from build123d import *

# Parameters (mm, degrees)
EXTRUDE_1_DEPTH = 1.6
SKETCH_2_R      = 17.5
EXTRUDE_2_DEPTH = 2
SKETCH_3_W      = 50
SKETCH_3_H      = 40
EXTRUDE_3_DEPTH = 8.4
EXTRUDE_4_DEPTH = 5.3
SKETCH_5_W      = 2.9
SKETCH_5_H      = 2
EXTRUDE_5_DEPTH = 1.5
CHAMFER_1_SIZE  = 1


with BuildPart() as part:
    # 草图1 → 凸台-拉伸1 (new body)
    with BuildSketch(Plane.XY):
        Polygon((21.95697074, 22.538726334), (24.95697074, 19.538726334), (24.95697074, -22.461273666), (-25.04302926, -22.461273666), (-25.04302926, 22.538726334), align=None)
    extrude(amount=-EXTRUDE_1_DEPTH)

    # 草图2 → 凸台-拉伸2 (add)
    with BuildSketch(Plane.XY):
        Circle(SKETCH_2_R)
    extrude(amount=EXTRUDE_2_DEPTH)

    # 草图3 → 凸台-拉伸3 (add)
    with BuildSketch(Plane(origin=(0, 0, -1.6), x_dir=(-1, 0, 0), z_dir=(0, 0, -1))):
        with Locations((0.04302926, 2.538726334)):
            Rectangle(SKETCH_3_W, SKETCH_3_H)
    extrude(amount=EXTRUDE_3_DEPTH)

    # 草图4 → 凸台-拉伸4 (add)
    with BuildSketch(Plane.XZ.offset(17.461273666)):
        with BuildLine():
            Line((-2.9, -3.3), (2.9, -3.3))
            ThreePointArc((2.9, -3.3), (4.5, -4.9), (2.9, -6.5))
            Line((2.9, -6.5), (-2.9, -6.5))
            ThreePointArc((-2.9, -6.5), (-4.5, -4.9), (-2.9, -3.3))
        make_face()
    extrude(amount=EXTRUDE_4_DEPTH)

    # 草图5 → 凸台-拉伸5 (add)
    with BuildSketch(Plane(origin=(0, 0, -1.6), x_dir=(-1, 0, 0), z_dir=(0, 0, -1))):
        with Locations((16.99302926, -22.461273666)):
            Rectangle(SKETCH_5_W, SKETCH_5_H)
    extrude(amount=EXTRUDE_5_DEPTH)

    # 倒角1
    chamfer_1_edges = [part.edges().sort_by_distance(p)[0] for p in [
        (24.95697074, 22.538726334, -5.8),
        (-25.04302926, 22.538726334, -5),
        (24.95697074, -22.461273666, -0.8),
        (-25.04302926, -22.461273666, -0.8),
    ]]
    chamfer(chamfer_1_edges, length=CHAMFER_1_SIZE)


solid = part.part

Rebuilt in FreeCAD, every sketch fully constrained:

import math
import FreeCAD as App
import Part
import Sketcher
Q = App.Units.Quantity


def edges_at(feature, points):
    """Names of the edges that pass closest to the given points."""
    edges = feature.Shape.Edges
    near = lambda p: min(range(len(edges)), key=lambda i: edges[i].distToShape(Part.Vertex(*p))[0])
    return sorted({f"Edge{near(p) + 1}" for p in points})

doc = App.newDocument("Part")
body = doc.addObject("PartDesign::Body", "Body")

# Sketch on XY plane
sketch1 = body.newObject("Sketcher::SketchObject", "Sketch")
sketch1.AttachmentSupport = (doc.getObject("XY_Plane"), [""])
sketch1.MapMode = "FlatFace"
sketch1.addGeometry([
    Part.LineSegment(App.Vector(24.956971, 19.538726, 0), App.Vector(21.956971, 22.538726, 0)),  # 0
    Part.LineSegment(App.Vector(21.956971, 22.538726, 0), App.Vector(-25.043029, 22.538726, 0)),  # 1
    Part.LineSegment(App.Vector(-25.043029, 22.538726, 0), App.Vector(-25.043029, -22.461274, 0)),  # 2
    Part.LineSegment(App.Vector(-25.043029, -22.461274, 0), App.Vector(24.956971, -22.461274, 0)),  # 3
    Part.LineSegment(App.Vector(24.956971, -22.461274, 0), App.Vector(24.956971, 19.538726, 0)),  # 4
], False)
sketch1.addConstraint([
    Sketcher.Constraint("Coincident", 0, 2, 1, 1),
    Sketcher.Constraint("Coincident", 1, 2, 2, 1),
    Sketcher.Constraint("Coincident", 2, 2, 3, 1),
    Sketcher.Constraint("Coincident", 3, 2, 4, 1),
    Sketcher.Constraint("Coincident", 4, 2, 0, 1),
    Sketcher.Constraint("Horizontal", 1),
    Sketcher.Constraint("Vertical", 2),
    Sketcher.Constraint("Horizontal", 3),
    Sketcher.Constraint("Vertical", 4),
    Sketcher.Constraint("DistanceX", 1, 2, 1, 1, Q("47 mm")),
    Sketcher.Constraint("DistanceX", 3, 1, 3, 2, Q("50 mm")),
    Sketcher.Constraint("DistanceY", 2, 2, 2, 1, Q("45 mm")),
    Sketcher.Constraint("DistanceY", 4, 1, 4, 2, Q("42 mm")),
    Sketcher.Constraint("DistanceX", -1, 1, 0, 2, Q("21.956971 mm")),
    Sketcher.Constraint("DistanceY", -1, 1, 0, 2, Q("22.538726 mm")),
])
pad1 = body.newObject("PartDesign::Pad", "Pad")
pad1.Profile = sketch1
pad1.Length = 1.6
pad1.Reversed = True

# Sketch on XY plane
sketch2 = body.newObject("Sketcher::SketchObject", "Sketch001")
sketch2.AttachmentSupport = (doc.getObject("XY_Plane"), [""])
sketch2.MapMode = "FlatFace"
sketch2.addGeometry(Part.Circle(App.Vector(0, 0, 0), App.Vector(0, 0, 1), 17.5), False)
sketch2.addConstraint([
    Sketcher.Constraint("Coincident", 0, 3, -1, 1),
    Sketcher.Constraint("Diameter", 0, Q("35 mm")),
])
pad2 = body.newObject("PartDesign::Pad", "Pad001")
pad2.Profile = sketch2
pad2.Length = 2

# Sketch on XY plane
sketch3 = body.newObject("Sketcher::SketchObject", "Sketch002")
sketch3.AttachmentSupport = (doc.getObject("XY_Plane"), [""])
sketch3.MapMode = "FlatFace"
sketch3.AttachmentOffset = App.Placement(App.Vector(0, 0, -1.6), App.Rotation())
sketch3.addGeometry([
    Part.LineSegment(App.Vector(24.956971, 22.538726, 0), App.Vector(24.956971, -17.461274, 0)),
    Part.LineSegment(App.Vector(24.956971, -17.461274, 0), App.Vector(-25.043029, -17.461274, 0)),
    Part.LineSegment(App.Vector(-25.043029, -17.461274, 0), App.Vector(-25.043029, 22.538726, 0)),
    Part.LineSegment(App.Vector(-25.043029, 22.538726, 0), App.Vector(24.956971, 22.538726, 0)),
], False)
sketch3.addConstraint([
    Sketcher.Constraint("Coincident", 0, 2, 1, 1),
    Sketcher.Constraint("Coincident", 1, 2, 2, 1),
    Sketcher.Constraint("Coincident", 2, 2, 3, 1),
    Sketcher.Constraint("Coincident", 3, 2, 0, 1),
    Sketcher.Constraint("Vertical", 0),
    Sketcher.Constraint("Horizontal", 1),
    Sketcher.Constraint("Vertical", 2),
    Sketcher.Constraint("Horizontal", 3),
    Sketcher.Constraint("DistanceX", 1, 2, 1, 1, Q("50 mm")),
    Sketcher.Constraint("DistanceY", 0, 2, 0, 1, Q("40 mm")),
    Sketcher.Constraint("DistanceX", -1, 1, 0, 2, Q("24.956971 mm")),
    Sketcher.Constraint("DistanceY", 0, 2, -1, 1, Q("17.461274 mm")),
])
pad3 = body.newObject("PartDesign::Pad", "Pad002")
pad3.Profile = sketch3
pad3.Length = 8.4
pad3.Reversed = True

# Sketch on XZ plane
sketch4 = body.newObject("Sketcher::SketchObject", "Sketch003")
sketch4.AttachmentSupport = (doc.getObject("XZ_Plane"), [""])
sketch4.MapMode = "FlatFace"
sketch4.AttachmentOffset = App.Placement(App.Vector(0, 0, 17.461274), App.Rotation())
sketch4.addGeometry([
    Part.LineSegment(App.Vector(2.9, -3.3, 0), App.Vector(-2.9, -3.3, 0)),
    Part.ArcOfCircle(Part.Circle(App.Vector(-2.9, -4.9, 0), App.Vector(0, 0, 1), 1.6), math.radians(90), math.radians(270)),
    Part.LineSegment(App.Vector(-2.9, -6.5, 0), App.Vector(2.9, -6.5, 0)),
    Part.ArcOfCircle(Part.Circle(App.Vector(2.9, -4.9, 0), App.Vector(0, 0, 1), 1.6), math.radians(-90), math.radians(90)),
], False)
sketch4.addConstraint([
    Sketcher.Constraint("Tangent", 0, 2, 1, 1),
    Sketcher.Constraint("Tangent", 1, 2, 2, 1),
    Sketcher.Constraint("Tangent", 2, 2, 3, 1),
    Sketcher.Constraint("Tangent", 3, 2, 0, 1),
    Sketcher.Constraint("Horizontal", 0),
    Sketcher.Constraint("Horizontal", 2),
    Sketcher.Constraint("Radius", 1, Q("1.6 mm")),
    Sketcher.Constraint("DistanceX", 0, 2, 0, 1, Q("5.8 mm")),
    Sketcher.Constraint("DistanceX", 1, 3, -1, 1, Q("2.9 mm")),
    Sketcher.Constraint("DistanceY", 1, 3, -1, 1, Q("4.9 mm")),
])
pad4 = body.newObject("PartDesign::Pad", "Pad003")
pad4.Profile = sketch4
pad4.Length = 5.3

# Sketch on XY plane
sketch5 = body.newObject("Sketcher::SketchObject", "Sketch004")
sketch5.AttachmentSupport = (doc.getObject("XY_Plane"), [""])
sketch5.MapMode = "FlatFace"
sketch5.AttachmentOffset = App.Placement(App.Vector(0, 0, -1.6), App.Rotation())
sketch5.addGeometry([
    Part.LineSegment(App.Vector(-15.543029, -21.461274, 0), App.Vector(-15.543029, -23.461274, 0)),
    Part.LineSegment(App.Vector(-15.543029, -23.461274, 0), App.Vector(-18.443029, -23.461274, 0)),
    Part.LineSegment(App.Vector(-18.443029, -23.461274, 0), App.Vector(-18.443029, -21.461274, 0)),
    Part.LineSegment(App.Vector(-18.443029, -21.461274, 0), App.Vector(-15.543029, -21.461274, 0)),
], False)
sketch5.addConstraint([
    Sketcher.Constraint("Coincident", 0, 2, 1, 1),
    Sketcher.Constraint("Coincident", 1, 2, 2, 1),
    Sketcher.Constraint("Coincident", 2, 2, 3, 1),
    Sketcher.Constraint("Coincident", 3, 2, 0, 1),
    Sketcher.Constraint("Vertical", 0),
    Sketcher.Constraint("Horizontal", 1),
    Sketcher.Constraint("Vertical", 2),
    Sketcher.Constraint("Horizontal", 3),
    Sketcher.Constraint("DistanceY", 0, 2, 0, 1, Q("2 mm")),
    Sketcher.Constraint("DistanceX", 1, 2, 1, 1, Q("2.9 mm")),
    Sketcher.Constraint("DistanceX", 0, 2, -1, 1, Q("15.543029 mm")),
    Sketcher.Constraint("DistanceY", 0, 2, -1, 1, Q("23.461274 mm")),
])
pad5 = body.newObject("PartDesign::Pad", "Pad004")
pad5.Profile = sketch5
pad5.Length = 1.5
pad5.Reversed = True
doc.recompute()

chamfer = body.newObject("PartDesign::Chamfer", "Chamfer")
chamfer.Base = (pad5, edges_at(pad5, [
    (24.957, 22.539, -5.8),
    (-25.043, 22.539, -5),
    (24.957, -22.461, -0.8),
    (-25.043, -22.461, -0.8),
]))
chamfer.Size = 1

doc.recompute()
